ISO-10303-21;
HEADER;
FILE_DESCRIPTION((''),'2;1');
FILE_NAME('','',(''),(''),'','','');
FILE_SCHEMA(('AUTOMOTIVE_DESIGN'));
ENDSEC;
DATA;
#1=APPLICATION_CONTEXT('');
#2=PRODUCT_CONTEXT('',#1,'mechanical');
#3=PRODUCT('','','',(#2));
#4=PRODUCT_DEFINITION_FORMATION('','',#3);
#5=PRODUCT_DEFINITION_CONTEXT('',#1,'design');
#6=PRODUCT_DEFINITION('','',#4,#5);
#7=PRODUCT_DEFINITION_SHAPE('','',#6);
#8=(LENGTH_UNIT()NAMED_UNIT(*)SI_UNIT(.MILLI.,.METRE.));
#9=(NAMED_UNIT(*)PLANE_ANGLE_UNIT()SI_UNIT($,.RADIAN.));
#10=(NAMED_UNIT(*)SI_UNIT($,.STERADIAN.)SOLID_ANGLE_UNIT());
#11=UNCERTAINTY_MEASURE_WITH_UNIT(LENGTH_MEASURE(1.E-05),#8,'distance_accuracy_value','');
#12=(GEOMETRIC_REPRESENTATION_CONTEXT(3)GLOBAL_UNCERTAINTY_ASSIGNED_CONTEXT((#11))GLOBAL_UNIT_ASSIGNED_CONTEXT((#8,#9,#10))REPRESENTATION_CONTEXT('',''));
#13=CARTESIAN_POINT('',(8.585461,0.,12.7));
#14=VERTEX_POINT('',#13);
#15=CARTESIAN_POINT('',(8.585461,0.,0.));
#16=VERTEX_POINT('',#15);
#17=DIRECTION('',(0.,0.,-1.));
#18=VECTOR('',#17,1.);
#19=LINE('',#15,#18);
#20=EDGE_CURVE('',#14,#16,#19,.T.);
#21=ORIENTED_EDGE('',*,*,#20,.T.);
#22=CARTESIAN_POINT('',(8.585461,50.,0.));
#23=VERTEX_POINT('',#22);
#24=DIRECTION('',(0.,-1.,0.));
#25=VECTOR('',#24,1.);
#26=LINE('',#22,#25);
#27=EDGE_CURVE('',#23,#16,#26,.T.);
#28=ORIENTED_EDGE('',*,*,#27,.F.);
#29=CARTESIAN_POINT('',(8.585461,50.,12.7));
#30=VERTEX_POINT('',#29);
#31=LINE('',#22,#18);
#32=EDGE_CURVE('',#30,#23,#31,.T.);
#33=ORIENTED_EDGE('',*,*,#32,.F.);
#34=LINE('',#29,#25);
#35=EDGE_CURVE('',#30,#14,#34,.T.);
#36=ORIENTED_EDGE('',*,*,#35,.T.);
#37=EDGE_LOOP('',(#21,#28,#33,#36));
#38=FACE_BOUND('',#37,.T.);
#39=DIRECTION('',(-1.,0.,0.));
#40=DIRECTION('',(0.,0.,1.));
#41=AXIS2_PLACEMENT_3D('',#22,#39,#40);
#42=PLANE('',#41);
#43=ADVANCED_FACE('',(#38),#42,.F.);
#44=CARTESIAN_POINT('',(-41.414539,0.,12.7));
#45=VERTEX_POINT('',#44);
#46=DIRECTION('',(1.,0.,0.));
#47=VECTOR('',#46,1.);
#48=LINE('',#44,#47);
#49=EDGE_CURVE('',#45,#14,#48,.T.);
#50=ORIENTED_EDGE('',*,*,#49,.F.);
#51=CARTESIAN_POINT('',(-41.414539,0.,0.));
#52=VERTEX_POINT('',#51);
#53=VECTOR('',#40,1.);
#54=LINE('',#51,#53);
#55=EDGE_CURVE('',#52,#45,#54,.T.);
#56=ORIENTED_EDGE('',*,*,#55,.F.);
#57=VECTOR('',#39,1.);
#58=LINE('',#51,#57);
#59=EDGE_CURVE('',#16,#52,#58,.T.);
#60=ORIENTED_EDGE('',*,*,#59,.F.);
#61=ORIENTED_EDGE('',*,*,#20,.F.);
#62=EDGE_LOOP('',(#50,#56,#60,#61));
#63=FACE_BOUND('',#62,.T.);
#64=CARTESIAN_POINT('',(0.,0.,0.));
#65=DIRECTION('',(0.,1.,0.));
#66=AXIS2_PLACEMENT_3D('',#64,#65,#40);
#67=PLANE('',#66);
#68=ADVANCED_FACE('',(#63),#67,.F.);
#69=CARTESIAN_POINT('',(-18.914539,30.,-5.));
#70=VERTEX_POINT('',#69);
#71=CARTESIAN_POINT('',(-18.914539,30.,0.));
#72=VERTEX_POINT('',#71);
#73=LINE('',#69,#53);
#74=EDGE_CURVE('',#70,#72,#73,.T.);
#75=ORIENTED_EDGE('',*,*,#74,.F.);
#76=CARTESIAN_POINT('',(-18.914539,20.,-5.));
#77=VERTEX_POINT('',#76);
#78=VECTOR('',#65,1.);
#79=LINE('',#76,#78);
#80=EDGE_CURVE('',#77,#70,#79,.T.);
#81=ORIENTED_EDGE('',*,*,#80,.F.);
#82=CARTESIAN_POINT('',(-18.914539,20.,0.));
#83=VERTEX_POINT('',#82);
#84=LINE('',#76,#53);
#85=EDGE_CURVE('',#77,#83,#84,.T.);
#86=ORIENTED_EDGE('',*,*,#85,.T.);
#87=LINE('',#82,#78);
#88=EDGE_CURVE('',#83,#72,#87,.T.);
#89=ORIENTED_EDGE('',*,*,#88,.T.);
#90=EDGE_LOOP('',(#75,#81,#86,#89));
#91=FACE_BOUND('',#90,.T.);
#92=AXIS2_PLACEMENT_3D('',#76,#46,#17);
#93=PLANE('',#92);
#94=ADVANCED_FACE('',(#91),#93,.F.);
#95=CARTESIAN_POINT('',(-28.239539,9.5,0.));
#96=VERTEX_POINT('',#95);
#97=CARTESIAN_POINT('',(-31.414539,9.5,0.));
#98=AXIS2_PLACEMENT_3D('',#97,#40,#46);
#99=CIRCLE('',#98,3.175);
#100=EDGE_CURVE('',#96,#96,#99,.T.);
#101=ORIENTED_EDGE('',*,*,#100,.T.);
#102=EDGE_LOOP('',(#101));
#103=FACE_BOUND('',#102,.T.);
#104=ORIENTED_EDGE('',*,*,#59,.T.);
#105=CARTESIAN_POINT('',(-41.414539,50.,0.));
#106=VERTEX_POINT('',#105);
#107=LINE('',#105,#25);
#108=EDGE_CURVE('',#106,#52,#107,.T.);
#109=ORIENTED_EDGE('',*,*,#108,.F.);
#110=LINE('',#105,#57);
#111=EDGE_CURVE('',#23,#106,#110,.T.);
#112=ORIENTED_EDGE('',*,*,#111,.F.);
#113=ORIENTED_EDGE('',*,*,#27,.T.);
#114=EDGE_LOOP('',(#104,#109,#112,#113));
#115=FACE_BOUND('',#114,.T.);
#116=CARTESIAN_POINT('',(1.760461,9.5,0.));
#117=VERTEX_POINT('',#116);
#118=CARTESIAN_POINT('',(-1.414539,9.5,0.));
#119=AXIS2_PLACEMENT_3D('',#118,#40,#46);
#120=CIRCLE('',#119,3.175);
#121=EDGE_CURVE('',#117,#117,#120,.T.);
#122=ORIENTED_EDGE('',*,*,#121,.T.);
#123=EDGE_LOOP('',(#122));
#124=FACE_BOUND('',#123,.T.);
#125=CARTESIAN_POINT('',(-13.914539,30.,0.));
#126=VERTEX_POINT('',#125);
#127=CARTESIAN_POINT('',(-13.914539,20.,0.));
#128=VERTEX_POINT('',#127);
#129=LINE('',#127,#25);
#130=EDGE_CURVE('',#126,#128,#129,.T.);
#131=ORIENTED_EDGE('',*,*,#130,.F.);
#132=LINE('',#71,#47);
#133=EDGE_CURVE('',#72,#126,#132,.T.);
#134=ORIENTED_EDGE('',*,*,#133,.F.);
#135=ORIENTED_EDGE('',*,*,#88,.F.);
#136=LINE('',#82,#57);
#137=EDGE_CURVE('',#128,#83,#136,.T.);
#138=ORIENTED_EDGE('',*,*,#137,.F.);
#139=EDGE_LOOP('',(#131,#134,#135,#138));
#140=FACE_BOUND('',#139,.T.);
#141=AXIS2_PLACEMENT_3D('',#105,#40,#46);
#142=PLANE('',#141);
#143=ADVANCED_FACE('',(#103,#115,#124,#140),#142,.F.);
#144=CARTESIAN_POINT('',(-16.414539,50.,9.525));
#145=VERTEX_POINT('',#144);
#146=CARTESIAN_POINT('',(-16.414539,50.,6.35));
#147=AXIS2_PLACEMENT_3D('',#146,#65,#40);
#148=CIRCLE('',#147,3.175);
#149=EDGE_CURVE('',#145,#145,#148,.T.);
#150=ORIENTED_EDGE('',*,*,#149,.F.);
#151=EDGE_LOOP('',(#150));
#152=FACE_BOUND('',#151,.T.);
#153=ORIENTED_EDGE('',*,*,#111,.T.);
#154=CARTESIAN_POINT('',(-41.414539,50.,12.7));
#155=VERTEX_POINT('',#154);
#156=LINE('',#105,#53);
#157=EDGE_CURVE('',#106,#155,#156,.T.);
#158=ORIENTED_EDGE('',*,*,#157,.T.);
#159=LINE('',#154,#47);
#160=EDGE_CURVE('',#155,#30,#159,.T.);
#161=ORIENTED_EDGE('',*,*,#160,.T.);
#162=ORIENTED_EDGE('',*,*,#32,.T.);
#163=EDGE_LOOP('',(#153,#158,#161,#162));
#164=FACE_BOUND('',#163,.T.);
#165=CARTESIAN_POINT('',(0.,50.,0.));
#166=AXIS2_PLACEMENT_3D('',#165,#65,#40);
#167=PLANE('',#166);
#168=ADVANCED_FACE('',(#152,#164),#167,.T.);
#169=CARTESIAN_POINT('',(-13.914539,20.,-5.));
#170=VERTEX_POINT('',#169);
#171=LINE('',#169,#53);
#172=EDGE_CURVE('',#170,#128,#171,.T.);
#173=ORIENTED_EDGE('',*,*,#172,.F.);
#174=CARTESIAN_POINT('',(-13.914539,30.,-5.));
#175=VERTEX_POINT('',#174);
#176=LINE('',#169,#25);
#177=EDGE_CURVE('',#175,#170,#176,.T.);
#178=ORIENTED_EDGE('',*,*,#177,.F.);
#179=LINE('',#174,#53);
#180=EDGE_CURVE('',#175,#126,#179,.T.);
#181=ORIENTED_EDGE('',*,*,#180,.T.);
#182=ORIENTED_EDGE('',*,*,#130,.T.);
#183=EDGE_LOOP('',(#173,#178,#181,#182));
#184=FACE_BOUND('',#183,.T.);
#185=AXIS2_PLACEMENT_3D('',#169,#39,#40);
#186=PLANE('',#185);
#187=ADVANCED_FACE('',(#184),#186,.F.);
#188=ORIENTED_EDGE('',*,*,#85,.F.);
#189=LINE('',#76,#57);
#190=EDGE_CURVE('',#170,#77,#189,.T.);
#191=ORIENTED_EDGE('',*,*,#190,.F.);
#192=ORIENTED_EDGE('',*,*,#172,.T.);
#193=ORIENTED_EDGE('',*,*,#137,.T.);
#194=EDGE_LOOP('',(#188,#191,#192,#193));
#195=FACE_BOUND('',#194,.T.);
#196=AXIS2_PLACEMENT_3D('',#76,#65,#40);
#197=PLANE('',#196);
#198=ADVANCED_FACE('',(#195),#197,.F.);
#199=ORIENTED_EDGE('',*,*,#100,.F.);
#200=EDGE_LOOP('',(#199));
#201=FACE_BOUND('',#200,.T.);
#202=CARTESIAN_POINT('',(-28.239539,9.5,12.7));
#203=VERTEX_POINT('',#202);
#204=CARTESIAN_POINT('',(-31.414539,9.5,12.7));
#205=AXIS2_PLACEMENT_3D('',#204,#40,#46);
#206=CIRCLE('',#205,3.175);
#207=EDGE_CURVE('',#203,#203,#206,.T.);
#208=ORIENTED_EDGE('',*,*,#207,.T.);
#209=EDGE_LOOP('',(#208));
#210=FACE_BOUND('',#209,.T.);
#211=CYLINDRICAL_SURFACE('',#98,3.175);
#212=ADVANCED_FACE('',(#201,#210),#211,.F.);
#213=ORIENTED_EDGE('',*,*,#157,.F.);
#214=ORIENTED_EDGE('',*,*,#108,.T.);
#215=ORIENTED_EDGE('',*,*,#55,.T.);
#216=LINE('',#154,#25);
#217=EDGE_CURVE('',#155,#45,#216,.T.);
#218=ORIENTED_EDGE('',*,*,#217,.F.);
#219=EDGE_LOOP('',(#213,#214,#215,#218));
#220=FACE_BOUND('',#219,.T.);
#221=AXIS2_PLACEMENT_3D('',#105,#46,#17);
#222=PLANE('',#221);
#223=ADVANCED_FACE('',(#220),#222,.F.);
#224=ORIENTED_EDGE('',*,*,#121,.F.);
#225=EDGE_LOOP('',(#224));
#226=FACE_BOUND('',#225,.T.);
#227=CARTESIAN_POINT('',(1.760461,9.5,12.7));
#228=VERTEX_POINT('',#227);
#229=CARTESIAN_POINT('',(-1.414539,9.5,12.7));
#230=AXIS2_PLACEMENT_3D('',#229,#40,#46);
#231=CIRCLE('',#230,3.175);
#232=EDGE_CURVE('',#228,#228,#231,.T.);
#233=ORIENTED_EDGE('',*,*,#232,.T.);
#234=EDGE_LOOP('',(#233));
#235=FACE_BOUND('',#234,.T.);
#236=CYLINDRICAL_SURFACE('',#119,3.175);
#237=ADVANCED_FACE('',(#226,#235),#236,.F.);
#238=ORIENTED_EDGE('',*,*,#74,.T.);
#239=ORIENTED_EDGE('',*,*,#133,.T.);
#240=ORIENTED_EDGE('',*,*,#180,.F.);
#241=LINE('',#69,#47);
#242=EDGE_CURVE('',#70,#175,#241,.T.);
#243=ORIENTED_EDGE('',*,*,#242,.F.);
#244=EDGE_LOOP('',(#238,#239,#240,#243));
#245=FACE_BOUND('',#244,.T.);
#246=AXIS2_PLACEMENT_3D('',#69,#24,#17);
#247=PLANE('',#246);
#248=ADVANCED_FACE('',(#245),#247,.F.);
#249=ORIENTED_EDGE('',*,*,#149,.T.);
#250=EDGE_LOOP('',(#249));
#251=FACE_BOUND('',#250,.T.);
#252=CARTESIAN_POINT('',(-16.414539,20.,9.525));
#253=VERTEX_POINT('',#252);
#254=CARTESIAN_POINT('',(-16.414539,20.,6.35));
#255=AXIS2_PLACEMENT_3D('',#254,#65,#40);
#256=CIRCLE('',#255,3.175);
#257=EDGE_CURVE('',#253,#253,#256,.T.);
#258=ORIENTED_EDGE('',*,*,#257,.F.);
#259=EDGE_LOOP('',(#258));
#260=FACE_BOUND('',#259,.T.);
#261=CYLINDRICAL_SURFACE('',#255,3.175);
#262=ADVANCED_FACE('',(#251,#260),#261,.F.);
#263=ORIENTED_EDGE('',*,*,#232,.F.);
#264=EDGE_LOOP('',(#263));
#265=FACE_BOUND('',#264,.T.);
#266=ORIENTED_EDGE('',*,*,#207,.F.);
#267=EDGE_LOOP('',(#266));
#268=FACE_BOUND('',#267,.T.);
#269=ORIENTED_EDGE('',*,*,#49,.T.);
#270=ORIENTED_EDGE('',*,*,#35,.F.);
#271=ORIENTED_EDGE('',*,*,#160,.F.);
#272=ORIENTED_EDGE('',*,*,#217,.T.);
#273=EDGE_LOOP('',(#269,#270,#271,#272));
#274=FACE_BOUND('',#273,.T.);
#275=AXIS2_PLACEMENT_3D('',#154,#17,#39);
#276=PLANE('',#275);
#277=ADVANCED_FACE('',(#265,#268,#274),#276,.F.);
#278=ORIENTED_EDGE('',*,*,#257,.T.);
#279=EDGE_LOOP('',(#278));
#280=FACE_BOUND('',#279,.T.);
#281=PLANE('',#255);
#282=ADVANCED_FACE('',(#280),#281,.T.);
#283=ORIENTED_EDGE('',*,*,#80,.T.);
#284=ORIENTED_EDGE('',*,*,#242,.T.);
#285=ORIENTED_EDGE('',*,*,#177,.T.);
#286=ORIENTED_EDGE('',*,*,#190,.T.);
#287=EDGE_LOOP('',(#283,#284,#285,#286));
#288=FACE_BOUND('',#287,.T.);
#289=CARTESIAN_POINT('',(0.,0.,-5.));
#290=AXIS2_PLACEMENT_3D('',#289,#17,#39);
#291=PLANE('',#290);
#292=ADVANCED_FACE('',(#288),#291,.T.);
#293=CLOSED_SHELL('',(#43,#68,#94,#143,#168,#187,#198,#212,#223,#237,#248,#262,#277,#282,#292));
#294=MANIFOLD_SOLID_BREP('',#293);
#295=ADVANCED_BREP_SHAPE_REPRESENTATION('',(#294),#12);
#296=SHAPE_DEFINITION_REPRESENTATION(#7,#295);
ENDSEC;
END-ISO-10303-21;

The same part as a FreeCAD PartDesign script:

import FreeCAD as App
import Part
import Sketcher
Q = App.Units.Quantity

doc = App.newDocument("Part")
body = doc.addObject("PartDesign::Body", "Body")

# Sketch on XZ plane
sketch1 = body.newObject("Sketcher::SketchObject", "Sketch")
sketch1.AttachmentSupport = (doc.getObject("XZ_Plane"), [""])
sketch1.MapMode = "FlatFace"
sketch1.addGeometry([
    Part.LineSegment(App.Vector(-41, 0, 0), App.Vector(-41, 13, 0)),
    Part.LineSegment(App.Vector(-41, 13, 0), App.Vector(9, 13, 0)),
    Part.LineSegment(App.Vector(9, 13, 0), App.Vector(9, 0, 0)),
    Part.LineSegment(App.Vector(9, 0, 0), App.Vector(-41, 0, 0)),
], False)
sketch1.addConstraint([
    Sketcher.Constraint("Coincident", 0, 2, 1, 1),
    Sketcher.Constraint("Coincident", 1, 2, 2, 1),
    Sketcher.Constraint("Coincident", 2, 2, 3, 1),
    Sketcher.Constraint("Coincident", 3, 2, 0, 1),
    Sketcher.Constraint("Vertical", 0),
    Sketcher.Constraint("Horizontal", 1),
    Sketcher.Constraint("Vertical", 2),
    Sketcher.Constraint("Horizontal", 3),
    Sketcher.Constraint("PointOnObject", 2, 2, -1),
    Sketcher.Constraint("DistanceX", 1, 1, 1, 2, Q("50 mm")),
    Sketcher.Constraint("DistanceY", 0, 1, 0, 2, Q("12.7 mm")),
    Sketcher.Constraint("DistanceX", 0, 2, -1, 1, Q("41.414539 mm")),
])
pad1 = body.newObject("PartDesign::Pad", "Pad")
pad1.Profile = sketch1
pad1.Length = 50
pad1.Reversed = True

# Sketch on XY plane
sketch2 = body.newObject("Sketcher::SketchObject", "Sketch001")
sketch2.AttachmentSupport = (doc.getObject("XY_Plane"), [""])
sketch2.MapMode = "FlatFace"
sketch2.AttachmentOffset = App.Placement(App.Vector(0, 0, 12.7), App.Rotation())
sketch2.addGeometry([
    Part.Circle(App.Vector(-1.4, 9.5, 0), App.Vector(0, 0, 1), 3.2),
    Part.Circle(App.Vector(-31.4, 9.5, 0), App.Vector(0, 0, 1), 3.2),
], False)
sketch2.addConstraint([
    Sketcher.Constraint("Equal", 0, 1),
    Sketcher.Constraint("Horizontal", 0, 3, 1, 3),
    Sketcher.Constraint("Diameter", 0, Q("6.35 mm")),
    Sketcher.Constraint("DistanceX", 1, 3, 0, 3, Q("30 mm")),
    Sketcher.Constraint("DistanceY", -1, 1, 0, 3, Q("9.5 mm")),
    Sketcher.Constraint("DistanceX", 0, 3, -1, 1, Q("1.414539 mm")),
])
pocket1 = body.newObject("PartDesign::Pocket", "Pocket")
pocket1.Profile = sketch2
pocket1.Type = "ThroughAll"

# Sketch on XZ plane
sketch3 = body.newObject("Sketcher::SketchObject", "Sketch002")
sketch3.AttachmentSupport = (doc.getObject("XZ_Plane"), [""])
sketch3.MapMode = "FlatFace"
sketch3.AttachmentOffset = App.Placement(App.Vector(0, 0, -50), App.Rotation())
sketch3.addGeometry(Part.Circle(App.Vector(-16.4, 6.3, 0), App.Vector(0, 0, 1), 3.2), False)
sketch3.addConstraint([
    Sketcher.Constraint("Diameter", 0, Q("6.35 mm")),
    Sketcher.Constraint("DistanceY", -1, 1, 0, 3, Q("6.35 mm")),
    Sketcher.Constraint("DistanceX", 0, 3, -1, 1, Q("16.414539 mm")),
])
pocket2 = body.newObject("PartDesign::Pocket", "Pocket001")
pocket2.Profile = sketch3
pocket2.Length = 30
pocket2.Reversed = True

# Sketch on XY plane
sketch4 = body.newObject("Sketcher::SketchObject", "Sketch003")
sketch4.AttachmentSupport = (doc.getObject("XY_Plane"), [""])
sketch4.MapMode = "FlatFace"
sketch4.addGeometry([
    Part.LineSegment(App.Vector(-14, 30, 0), App.Vector(-14, 20, 0)),
    Part.LineSegment(App.Vector(-14, 20, 0), App.Vector(-19, 20, 0)),
    Part.LineSegment(App.Vector(-19, 20, 0), App.Vector(-19, 30, 0)),
    Part.LineSegment(App.Vector(-19, 30, 0), App.Vector(-14, 30, 0)),
], False)
sketch4.addConstraint([
    Sketcher.Constraint("Coincident", 0, 2, 1, 1),
    Sketcher.Constraint("Coincident", 1, 2, 2, 1),
    Sketcher.Constraint("Coincident", 2, 2, 3, 1),
    Sketcher.Constraint("Coincident", 3, 2, 0, 1),
    Sketcher.Constraint("Vertical", 0),
    Sketcher.Constraint("Horizontal", 1),
    Sketcher.Constraint("Vertical", 2),
    Sketcher.Constraint("Horizontal", 3),
    Sketcher.Constraint("DistanceX", 1, 2, 1, 1, Q("5 mm")),
    Sketcher.Constraint("DistanceY", 0, 2, 0, 1, Q("10 mm")),
    Sketcher.Constraint("DistanceY", -1, 1, 0, 2, Q("20 mm")),
    Sketcher.Constraint("DistanceX", 0, 2, -1, 1, Q("13.914539 mm")),
])
pad2 = body.newObject("PartDesign::Pad", "Pad001")
pad2.Profile = sketch4
pad2.Length = 5
pad2.Reversed = True

doc.recompute()
